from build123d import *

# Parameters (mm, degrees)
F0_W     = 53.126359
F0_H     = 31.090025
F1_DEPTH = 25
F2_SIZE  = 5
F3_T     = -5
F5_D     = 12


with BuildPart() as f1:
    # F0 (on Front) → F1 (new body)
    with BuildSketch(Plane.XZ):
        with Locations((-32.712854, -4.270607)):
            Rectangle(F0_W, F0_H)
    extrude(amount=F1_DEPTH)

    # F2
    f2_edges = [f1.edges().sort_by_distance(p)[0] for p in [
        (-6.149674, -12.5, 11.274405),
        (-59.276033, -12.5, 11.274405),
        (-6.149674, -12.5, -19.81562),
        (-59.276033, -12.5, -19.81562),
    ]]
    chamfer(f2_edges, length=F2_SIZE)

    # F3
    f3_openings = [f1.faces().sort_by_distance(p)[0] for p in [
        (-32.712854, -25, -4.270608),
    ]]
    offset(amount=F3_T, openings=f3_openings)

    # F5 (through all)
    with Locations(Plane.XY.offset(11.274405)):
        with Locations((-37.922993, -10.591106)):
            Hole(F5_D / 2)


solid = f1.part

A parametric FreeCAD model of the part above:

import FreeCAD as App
import Part
import Sketcher

V = App.Vector


def edges_at(feature, points):
    """Names of the edges that pass closest to the given points."""
    edges = feature.Shape.Edges
    near = lambda p: min(range(len(edges)), key=lambda i: edges[i].distToShape(Part.Vertex(*p))[0])
    return sorted({f"Edge{near(p) + 1}" for p in points})


def faces_at(feature, points):
    """Names of the faces that lie closest to the given points."""
    faces = feature.Shape.Faces
    near = lambda p: min(range(len(faces)), key=lambda i: faces[i].distToShape(Part.Vertex(*p))[0])
    return sorted({f"Face{near(p) + 1}" for p in points})


def add_polygon(sketch, points):
    """Adds a closed chain of lines whose ends are joined by coincident constraints."""
    first, n = sketch.GeometryCount, len(points)
    for a, b in zip(points, points[1:] + points[:1]):
        sketch.addGeometry(Part.LineSegment(App.Vector(*a, 0), App.Vector(*b, 0)), False)
    for i in range(n):
        sketch.addConstraint(Sketcher.Constraint("Coincident", first + i, 2, first + (i + 1) % n, 1))

doc = App.newDocument("Part")
body = doc.addObject("PartDesign::Body", "Body")

# Sketch on XZ plane
sketch1 = body.newObject("Sketcher::SketchObject", "Sketch")
sketch1.AttachmentSupport = (doc.getObject("XZ_Plane"), [""])
sketch1.MapMode = "FlatFace"
add_polygon(sketch1, [(-59, 11), (-59, -20), (-6, -20), (-6, 11)])  # lines 0-3
sketch1.addConstraint([
    Sketcher.Constraint("Vertical", 0),
    Sketcher.Constraint("Horizontal", 1),
    Sketcher.Constraint("Vertical", 2),
    Sketcher.Constraint("Horizontal", 3),
    Sketcher.Constraint("DistanceX", 1, 1, 1, 2, 53.126359),
    Sketcher.Constraint("DistanceY", 0, 2, 0, 1, 31.090025),
    Sketcher.Constraint("DistanceY", 0, 2, -1, 1, 19.81562),
    Sketcher.Constraint("DistanceX", 0, 2, -1, 1, 59.276033),
])
pad1 = body.newObject("PartDesign::Pad", "Pad")
pad1.Profile = sketch1
pad1.Length = 25
doc.recompute()

chamfer = body.newObject("PartDesign::Chamfer", "Chamfer")
chamfer.Base = (pad1, edges_at(pad1, [
    (-6.15, -12.5, 11.274),
    (-59.276, -12.5, 11.274),
    (-6.15, -12.5, -19.816),
    (-59.276, -12.5, -19.816),
]))
chamfer.Size = 5
doc.recompute()

thickness = body.newObject("PartDesign::Thickness", "Thickness")
thickness.Base = (chamfer, faces_at(chamfer, [(-32.713, -25, -4.271)]))
thickness.Value = 5
thickness.Reversed = True
thickness.Join = "Arc"

# Sketch on XY plane
sketch2 = body.newObject("Sketcher::SketchObject", "Sketch001")
sketch2.AttachmentSupport = (doc.getObject("XY_Plane"), [""])
sketch2.MapMode = "FlatFace"
sketch2.AttachmentOffset = App.Placement(V(0, 0, 11.274405), App.Rotation())
sketch2.addGeometry(Part.Circle(V(-38, -11, 0), V(0, 0, 1), 6), False)
sketch2.addConstraint([
    Sketcher.Constraint("Diameter", 0, 12.0),
    Sketcher.Constraint("DistanceX", 0, 3, -1, 1, 37.922993),
    Sketcher.Constraint("DistanceY", 0, 3, -1, 1, 10.591106),
])
doc.recompute()
hole = body.newObject("PartDesign::Hole", "Hole")
hole.Profile = sketch2
hole.ThreadType = "None"
hole.Diameter = 12
hole.DepthType = "ThroughAll"

doc.recompute()
